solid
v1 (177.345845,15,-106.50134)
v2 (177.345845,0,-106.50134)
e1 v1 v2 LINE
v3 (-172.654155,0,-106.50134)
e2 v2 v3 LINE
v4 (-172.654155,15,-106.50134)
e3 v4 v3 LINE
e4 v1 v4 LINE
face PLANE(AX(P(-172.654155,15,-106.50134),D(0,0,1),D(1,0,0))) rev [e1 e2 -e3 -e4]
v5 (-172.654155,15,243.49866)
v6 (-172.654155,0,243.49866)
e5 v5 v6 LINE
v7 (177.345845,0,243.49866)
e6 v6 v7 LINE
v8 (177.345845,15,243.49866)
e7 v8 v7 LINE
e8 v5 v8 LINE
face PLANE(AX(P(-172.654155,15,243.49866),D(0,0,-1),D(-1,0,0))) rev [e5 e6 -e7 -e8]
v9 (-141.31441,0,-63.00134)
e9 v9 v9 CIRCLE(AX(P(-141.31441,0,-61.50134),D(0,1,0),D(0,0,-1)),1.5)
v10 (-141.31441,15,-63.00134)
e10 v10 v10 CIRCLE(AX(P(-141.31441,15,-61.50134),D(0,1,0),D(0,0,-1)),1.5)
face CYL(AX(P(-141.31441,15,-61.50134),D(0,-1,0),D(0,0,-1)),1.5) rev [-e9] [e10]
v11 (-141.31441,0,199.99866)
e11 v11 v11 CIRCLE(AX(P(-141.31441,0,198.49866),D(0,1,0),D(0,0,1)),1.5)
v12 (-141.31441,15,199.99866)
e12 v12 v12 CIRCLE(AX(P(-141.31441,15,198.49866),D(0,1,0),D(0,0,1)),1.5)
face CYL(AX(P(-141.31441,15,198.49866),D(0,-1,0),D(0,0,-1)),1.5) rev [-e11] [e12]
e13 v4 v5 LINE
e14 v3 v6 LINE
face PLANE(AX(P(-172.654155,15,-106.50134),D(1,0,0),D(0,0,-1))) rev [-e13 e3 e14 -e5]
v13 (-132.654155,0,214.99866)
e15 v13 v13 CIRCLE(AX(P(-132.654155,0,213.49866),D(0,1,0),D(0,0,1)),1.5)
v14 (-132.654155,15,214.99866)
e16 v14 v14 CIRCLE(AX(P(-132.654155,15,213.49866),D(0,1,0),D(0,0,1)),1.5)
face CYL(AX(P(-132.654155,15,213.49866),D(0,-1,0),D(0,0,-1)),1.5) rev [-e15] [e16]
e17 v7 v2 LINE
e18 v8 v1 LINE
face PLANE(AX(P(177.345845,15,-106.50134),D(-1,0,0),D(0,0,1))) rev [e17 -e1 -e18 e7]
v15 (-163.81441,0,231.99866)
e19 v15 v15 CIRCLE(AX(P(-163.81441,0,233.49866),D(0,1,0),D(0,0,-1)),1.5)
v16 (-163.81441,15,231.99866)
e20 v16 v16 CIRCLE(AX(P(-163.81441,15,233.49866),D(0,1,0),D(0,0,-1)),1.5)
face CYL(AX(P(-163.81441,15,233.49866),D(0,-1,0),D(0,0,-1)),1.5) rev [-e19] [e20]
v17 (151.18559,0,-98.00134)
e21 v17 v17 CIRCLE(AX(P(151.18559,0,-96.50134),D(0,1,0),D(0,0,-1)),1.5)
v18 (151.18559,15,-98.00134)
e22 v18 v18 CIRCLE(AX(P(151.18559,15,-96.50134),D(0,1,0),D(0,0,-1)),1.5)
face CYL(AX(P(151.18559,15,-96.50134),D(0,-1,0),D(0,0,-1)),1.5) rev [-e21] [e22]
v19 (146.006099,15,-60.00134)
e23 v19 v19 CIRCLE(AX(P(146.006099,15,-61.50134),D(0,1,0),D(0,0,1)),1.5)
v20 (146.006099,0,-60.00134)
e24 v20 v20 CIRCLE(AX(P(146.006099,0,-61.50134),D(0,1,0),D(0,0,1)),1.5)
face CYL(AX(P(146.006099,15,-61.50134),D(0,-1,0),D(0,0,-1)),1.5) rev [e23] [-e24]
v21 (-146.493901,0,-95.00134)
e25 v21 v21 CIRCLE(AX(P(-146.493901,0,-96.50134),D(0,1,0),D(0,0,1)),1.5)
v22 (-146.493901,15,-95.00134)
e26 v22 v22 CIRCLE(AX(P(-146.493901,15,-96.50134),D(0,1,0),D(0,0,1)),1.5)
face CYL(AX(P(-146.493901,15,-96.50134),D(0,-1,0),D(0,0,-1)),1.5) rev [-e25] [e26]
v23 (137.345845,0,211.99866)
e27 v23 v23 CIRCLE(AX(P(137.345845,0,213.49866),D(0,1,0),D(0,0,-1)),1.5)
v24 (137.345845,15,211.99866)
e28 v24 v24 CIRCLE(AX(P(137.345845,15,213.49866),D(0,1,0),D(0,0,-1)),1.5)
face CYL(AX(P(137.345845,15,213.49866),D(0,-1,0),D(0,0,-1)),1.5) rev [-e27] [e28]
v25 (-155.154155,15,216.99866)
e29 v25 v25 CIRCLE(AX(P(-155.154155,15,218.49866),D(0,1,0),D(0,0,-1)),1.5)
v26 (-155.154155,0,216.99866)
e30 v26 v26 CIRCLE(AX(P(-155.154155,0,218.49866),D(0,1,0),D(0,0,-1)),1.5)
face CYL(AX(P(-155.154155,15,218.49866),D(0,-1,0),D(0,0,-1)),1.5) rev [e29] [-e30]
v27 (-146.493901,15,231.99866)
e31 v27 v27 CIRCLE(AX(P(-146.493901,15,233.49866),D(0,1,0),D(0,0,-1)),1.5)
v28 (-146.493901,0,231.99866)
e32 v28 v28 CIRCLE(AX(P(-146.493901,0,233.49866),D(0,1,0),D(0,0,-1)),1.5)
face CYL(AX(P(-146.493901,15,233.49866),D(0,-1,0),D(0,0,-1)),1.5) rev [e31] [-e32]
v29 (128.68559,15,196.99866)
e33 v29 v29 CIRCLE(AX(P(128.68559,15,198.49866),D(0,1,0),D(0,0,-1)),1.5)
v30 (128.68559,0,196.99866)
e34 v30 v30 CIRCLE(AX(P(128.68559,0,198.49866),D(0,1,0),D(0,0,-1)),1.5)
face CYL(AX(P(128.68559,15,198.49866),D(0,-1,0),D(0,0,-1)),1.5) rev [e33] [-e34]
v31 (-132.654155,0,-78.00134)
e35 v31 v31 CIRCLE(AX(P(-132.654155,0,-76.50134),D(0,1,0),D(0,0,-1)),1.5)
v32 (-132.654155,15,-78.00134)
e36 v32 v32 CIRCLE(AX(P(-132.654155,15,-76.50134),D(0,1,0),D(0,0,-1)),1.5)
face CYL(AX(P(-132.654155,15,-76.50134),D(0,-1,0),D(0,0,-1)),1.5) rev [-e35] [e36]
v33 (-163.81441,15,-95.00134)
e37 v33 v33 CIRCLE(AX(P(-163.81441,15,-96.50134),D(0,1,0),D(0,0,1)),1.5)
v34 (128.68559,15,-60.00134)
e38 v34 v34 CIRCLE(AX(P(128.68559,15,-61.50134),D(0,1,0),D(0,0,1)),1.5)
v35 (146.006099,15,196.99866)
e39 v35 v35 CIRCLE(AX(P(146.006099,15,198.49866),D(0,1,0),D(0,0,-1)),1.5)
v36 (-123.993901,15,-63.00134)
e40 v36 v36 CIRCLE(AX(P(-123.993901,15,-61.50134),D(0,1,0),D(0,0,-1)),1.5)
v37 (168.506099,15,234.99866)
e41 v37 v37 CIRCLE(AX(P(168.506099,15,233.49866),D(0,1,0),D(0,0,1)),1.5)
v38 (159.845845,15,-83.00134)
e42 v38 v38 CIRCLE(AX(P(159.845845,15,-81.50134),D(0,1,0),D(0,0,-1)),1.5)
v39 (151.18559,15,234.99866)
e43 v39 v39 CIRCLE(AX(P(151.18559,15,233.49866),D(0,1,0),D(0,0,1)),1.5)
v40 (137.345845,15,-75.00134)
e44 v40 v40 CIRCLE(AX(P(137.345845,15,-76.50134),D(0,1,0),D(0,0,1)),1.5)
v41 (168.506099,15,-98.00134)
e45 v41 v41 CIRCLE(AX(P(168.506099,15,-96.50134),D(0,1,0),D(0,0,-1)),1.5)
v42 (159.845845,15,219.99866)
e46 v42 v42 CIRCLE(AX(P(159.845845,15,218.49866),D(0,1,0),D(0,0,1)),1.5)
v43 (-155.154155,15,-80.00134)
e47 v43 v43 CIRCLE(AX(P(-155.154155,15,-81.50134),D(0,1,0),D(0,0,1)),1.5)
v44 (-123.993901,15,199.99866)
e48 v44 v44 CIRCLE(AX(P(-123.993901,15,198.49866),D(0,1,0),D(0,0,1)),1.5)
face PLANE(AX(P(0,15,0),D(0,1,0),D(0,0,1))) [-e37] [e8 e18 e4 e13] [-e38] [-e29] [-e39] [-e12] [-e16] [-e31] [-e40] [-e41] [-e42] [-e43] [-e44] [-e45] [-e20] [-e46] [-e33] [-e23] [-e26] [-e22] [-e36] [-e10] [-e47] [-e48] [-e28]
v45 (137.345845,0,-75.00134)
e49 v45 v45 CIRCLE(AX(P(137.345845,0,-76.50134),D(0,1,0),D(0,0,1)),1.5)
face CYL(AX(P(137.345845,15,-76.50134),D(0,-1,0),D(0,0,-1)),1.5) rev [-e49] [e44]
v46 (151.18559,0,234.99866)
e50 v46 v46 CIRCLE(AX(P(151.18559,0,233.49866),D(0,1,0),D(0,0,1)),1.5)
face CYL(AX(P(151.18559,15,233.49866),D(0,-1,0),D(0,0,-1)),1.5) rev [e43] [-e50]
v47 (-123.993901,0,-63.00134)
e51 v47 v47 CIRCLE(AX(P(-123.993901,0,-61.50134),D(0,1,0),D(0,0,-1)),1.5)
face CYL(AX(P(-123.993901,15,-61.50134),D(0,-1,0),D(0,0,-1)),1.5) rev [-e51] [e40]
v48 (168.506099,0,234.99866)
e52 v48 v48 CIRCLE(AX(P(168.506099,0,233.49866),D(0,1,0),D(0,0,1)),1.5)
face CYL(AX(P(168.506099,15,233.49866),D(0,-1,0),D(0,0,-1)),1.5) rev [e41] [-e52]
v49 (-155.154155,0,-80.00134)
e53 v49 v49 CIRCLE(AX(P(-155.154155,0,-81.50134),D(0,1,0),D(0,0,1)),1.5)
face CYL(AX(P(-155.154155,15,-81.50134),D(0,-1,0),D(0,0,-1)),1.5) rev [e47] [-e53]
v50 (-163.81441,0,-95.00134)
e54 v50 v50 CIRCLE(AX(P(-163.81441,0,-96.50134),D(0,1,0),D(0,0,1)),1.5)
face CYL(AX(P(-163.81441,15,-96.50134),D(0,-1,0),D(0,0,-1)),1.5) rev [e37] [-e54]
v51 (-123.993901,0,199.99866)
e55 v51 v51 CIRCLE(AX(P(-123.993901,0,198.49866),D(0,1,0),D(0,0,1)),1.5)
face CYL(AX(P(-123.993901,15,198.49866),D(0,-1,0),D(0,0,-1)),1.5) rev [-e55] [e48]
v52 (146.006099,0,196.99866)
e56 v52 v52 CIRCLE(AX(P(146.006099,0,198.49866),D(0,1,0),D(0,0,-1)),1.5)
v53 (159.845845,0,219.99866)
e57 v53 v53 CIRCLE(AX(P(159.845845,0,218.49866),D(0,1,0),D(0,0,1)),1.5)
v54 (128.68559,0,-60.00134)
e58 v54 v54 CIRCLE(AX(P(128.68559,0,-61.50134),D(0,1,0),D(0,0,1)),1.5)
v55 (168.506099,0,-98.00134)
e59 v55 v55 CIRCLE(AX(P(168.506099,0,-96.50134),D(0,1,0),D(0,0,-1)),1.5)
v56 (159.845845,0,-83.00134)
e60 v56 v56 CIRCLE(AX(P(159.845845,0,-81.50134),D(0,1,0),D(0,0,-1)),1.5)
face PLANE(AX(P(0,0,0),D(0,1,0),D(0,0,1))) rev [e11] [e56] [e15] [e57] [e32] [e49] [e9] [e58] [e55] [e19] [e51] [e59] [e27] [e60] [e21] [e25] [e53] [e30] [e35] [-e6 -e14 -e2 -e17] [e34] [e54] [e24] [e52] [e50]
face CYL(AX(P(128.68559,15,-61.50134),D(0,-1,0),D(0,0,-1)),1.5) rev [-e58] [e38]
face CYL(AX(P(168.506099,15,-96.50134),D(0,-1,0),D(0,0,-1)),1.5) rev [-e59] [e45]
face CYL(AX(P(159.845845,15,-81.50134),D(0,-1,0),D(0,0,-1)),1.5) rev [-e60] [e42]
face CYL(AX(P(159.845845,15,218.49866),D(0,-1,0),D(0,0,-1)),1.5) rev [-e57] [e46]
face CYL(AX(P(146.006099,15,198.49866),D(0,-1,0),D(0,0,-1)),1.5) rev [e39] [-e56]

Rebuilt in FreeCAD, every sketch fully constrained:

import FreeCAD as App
import Part
import Sketcher

doc = App.newDocument("Part")
body = doc.addObject("PartDesign::Body", "Body")

sketch1 = doc.addObject("Sketcher::SketchObject", "Sketch")
body.addObject(sketch1)
sketch1.AttachmentSupport = (doc.XZ_Plane, [""])
sketch1.MapMode = "FlatFace"
sketch1.addGeometry([
    Part.LineSegment(App.Vector(-172.7, -106.5, 0), App.Vector(-172.7, 243.5, 0)),
    Part.LineSegment(App.Vector(-172.7, 243.5, 0), App.Vector(177.3, 243.5, 0)),
    Part.LineSegment(App.Vector(177.3, 243.5, 0), App.Vector(177.3, -106.5, 0)),
    Part.LineSegment(App.Vector(177.3, -106.5, 0), App.Vector(-172.7, -106.5, 0)),
    Part.Circle(App.Vector(-163.8, 233.5, 0), App.Vector(0, 0, 1), 1.5),
    Part.Circle(App.Vector(-146.5, 233.5, 0), App.Vector(0, 0, 1), 1.5),
    Part.Circle(App.Vector(-155.2, 218.5, 0), App.Vector(0, 0, 1), 1.5),
    Part.Circle(App.Vector(-132.7, 213.5, 0), App.Vector(0, 0, 1), 1.5),
    Part.Circle(App.Vector(-141.3, 198.5, 0), App.Vector(0, 0, 1), 1.5),
    Part.Circle(App.Vector(-124, 198.5, 0), App.Vector(0, 0, 1), 1.5),
    Part.Circle(App.Vector(151.2, 233.5, 0), App.Vector(0, 0, 1), 1.5),
    Part.Circle(App.Vector(168.5, 233.5, 0), App.Vector(0, 0, 1), 1.5),
    Part.Circle(App.Vector(159.8, 218.5, 0), App.Vector(0, 0, 1), 1.5),
    Part.Circle(App.Vector(137.3, 213.5, 0), App.Vector(0, 0, 1), 1.5),
    Part.Circle(App.Vector(128.7, 198.5, 0), App.Vector(0, 0, 1), 1.5),
    Part.Circle(App.Vector(146, 198.5, 0), App.Vector(0, 0, 1), 1.5),
    Part.Circle(App.Vector(-141.3, -61.5, 0), App.Vector(0, 0, 1), 1.5),
    Part.Circle(App.Vector(-124, -61.5, 0), App.Vector(0, 0, 1), 1.5),
    Part.Circle(App.Vector(-132.7, -76.5, 0), App.Vector(0, 0, 1), 1.5),
    Part.Circle(App.Vector(-155.2, -81.5, 0), App.Vector(0, 0, 1), 1.5),
    Part.Circle(App.Vector(-163.8, -96.5, 0), App.Vector(0, 0, 1), 1.5),
    Part.Circle(App.Vector(-146.5, -96.5, 0), App.Vector(0, 0, 1), 1.5),
    Part.Circle(App.Vector(128.7, -61.5, 0), App.Vector(0, 0, 1), 1.5),
    Part.Circle(App.Vector(146, -61.5, 0), App.Vector(0, 0, 1), 1.5),
    Part.Circle(App.Vector(137.3, -76.5, 0), App.Vector(0, 0, 1), 1.5),
    Part.Circle(App.Vector(159.8, -81.5, 0), App.Vector(0, 0, 1), 1.5),
    Part.Circle(App.Vector(151.2, -96.5, 0), App.Vector(0, 0, 1), 1.5),
    Part.Circle(App.Vector(168.5, -96.5, 0), App.Vector(0, 0, 1), 1.5),
], False)
sketch1.addConstraint([
    Sketcher.Constraint("Coincident", 0, 2, 1, 1),
    Sketcher.Constraint("Coincident", 1, 2, 2, 1),
    Sketcher.Constraint("Coincident", 2, 2, 3, 1),
    Sketcher.Constraint("Coincident", 3, 2, 0, 1),
    Sketcher.Constraint("Vertical", 0),
    Sketcher.Constraint("Horizontal", 1),
    Sketcher.Constraint("Vertical", 2),
    Sketcher.Constraint("Horizontal", 3),
    Sketcher.Constraint("Equal", 4, 5),
    Sketcher.Constraint("Equal", 5, 6),
    Sketcher.Constraint("Equal", 6, 7),
    Sketcher.Constraint("Equal", 7, 8),
    Sketcher.Constraint("Equal", 8, 9),
    Sketcher.Constraint("Equal", 9, 10),
    Sketcher.Constraint("Equal", 10, 11),
    Sketcher.Constraint("Equal", 11, 12),
    Sketcher.Constraint("Equal", 12, 13),
    Sketcher.Constraint("Equal", 13, 14),
    Sketcher.Constraint("Equal", 14, 15),
    Sketcher.Constraint("Equal", 15, 16),
    Sketcher.Constraint("Equal", 16, 17),
    Sketcher.Constraint("Equal", 17, 18),
    Sketcher.Constraint("Equal", 18, 19),
    Sketcher.Constraint("Equal", 19, 20),
    Sketcher.Constraint("Equal", 20, 21),
    Sketcher.Constraint("Equal", 21, 22),
    Sketcher.Constraint("Equal", 22, 23),
    Sketcher.Constraint("Equal", 23, 24),
    Sketcher.Constraint("Equal", 24, 25),
    Sketcher.Constraint("Equal", 25, 26),
    Sketcher.Constraint("Equal", 26, 27),
    Sketcher.Constraint("Horizontal", 4, 3, 5, 3),
    Sketcher.Constraint("Horizontal", 8, 3, 9, 3),
    Sketcher.Constraint("Horizontal", 5, 3, 10, 3),
    Sketcher.Constraint("Horizontal", 10, 3, 11, 3),
    Sketcher.Constraint("Horizontal", 6, 3, 12, 3),
    Sketcher.Constraint("Horizontal", 7, 3, 13, 3),
    Sketcher.Constraint("Horizontal", 9, 3, 14, 3),
    Sketcher.Constraint("Horizontal", 14, 3, 15, 3),
    Sketcher.Constraint("Horizontal", 16, 3, 17, 3),
    Sketcher.Constraint("Horizontal", 20, 3, 21, 3),
    Sketcher.Constraint("Horizontal", 17, 3, 22, 3),
    Sketcher.Constraint("Horizontal", 22, 3, 23, 3),
    Sketcher.Constraint("Horizontal", 18, 3, 24, 3),
    Sketcher.Constraint("Horizontal", 19, 3, 25, 3),
    Sketcher.Constraint("Horizontal", 21, 3, 26, 3),
    Sketcher.Constraint("Horizontal", 26, 3, 27, 3),
    Sketcher.Constraint("Vertical", 8, 3, 16, 3),
    Sketcher.Constraint("Vertical", 9, 3, 17, 3),
    Sketcher.Constraint("Vertical", 7, 3, 18, 3),
    Sketcher.Constraint("Vertical", 6, 3, 19, 3),
    Sketcher.Constraint("Vertical", 4, 3, 20, 3),
    Sketcher.Constraint("Vertical", 5, 3, 21, 3),
    Sketcher.Constraint("Vertical", 14, 3, 22, 3),
    Sketcher.Constraint("Vertical", 15, 3, 23, 3),
    Sketcher.Constraint("Vertical", 13, 3, 24, 3),
    Sketcher.Constraint("Vertical", 12, 3, 25, 3),
    Sketcher.Constraint("Vertical", 10, 3, 26, 3),
    Sketcher.Constraint("Vertical", 11, 3, 27, 3),
    Sketcher.Constraint("Equal", 3, 0),
    Sketcher.Constraint("Diameter", 4, 3.0),
    Sketcher.Constraint("DistanceX", 1, 1, 1, 2, 350.0),
    Sketcher.Constraint("DistanceY", 6, 3, 5, 3, 15.0),
    Sketcher.Constraint("DistanceY", 7, 3, 6, 3, 5.0),
    Sketcher.Constraint("DistanceY", 8, 3, 7, 3, 15.0),
    Sketcher.Constraint("DistanceX", 5, 3, 11, 3, 315.0),
    Sketcher.Constraint("DistanceX", 7, 3, 13, 3, 270.0),
    Sketcher.Constraint("DistanceY", 16, 3, 8, 3, 260.0),
    Sketcher.Constraint("DistanceY", 18, 3, 17, 3, 15.0),
    Sketcher.Constraint("DistanceY", 19, 3, 18, 3, 5.0),
    Sketcher.Constraint("DistanceY", 20, 3, 19, 3, 15.0),
    Sketcher.Constraint("DistanceX", 16, 3, 22, 3, 270.0),
    Sketcher.Constraint("DistanceX", 17, 3, 23, 3, 270.0),
    Sketcher.Constraint("DistanceY", 4, 3, 0, 2, 10.0),
    Sketcher.Constraint("DistanceX", 0, 2, 7, 3, 40.0),
    Sketcher.Constraint("DistanceX", 6, 3, 7, 3, 22.5),
    Sketcher.Constraint("DistanceX", 4, 3, 8, 3, 22.5),
    Sketcher.Constraint("DistanceX", 5, 3, 9, 3, 22.5),
    Sketcher.Constraint("DistanceX", 8, 3, 10, 3, 292.5),
    Sketcher.Constraint("DistanceX", 7, 3, 12, 3, 292.5),
    Sketcher.Constraint("DistanceX", 5, 3, -1, 1, 146.493901),
    Sketcher.Constraint("DistanceX", 4, 3, -1, 1, 163.81441),
    Sketcher.Constraint("DistanceY", -1, 1, 4, 3, 233.49866),
    Sketcher.Constraint("DistanceX", 6, 3, -1, 1, 155.154155),
])
pad1 = doc.addObject("PartDesign::Pad", "Pad")
body.addObject(pad1)
pad1.Profile = sketch1
pad1.Length = 15
pad1.Reversed = True

doc.recompute()
